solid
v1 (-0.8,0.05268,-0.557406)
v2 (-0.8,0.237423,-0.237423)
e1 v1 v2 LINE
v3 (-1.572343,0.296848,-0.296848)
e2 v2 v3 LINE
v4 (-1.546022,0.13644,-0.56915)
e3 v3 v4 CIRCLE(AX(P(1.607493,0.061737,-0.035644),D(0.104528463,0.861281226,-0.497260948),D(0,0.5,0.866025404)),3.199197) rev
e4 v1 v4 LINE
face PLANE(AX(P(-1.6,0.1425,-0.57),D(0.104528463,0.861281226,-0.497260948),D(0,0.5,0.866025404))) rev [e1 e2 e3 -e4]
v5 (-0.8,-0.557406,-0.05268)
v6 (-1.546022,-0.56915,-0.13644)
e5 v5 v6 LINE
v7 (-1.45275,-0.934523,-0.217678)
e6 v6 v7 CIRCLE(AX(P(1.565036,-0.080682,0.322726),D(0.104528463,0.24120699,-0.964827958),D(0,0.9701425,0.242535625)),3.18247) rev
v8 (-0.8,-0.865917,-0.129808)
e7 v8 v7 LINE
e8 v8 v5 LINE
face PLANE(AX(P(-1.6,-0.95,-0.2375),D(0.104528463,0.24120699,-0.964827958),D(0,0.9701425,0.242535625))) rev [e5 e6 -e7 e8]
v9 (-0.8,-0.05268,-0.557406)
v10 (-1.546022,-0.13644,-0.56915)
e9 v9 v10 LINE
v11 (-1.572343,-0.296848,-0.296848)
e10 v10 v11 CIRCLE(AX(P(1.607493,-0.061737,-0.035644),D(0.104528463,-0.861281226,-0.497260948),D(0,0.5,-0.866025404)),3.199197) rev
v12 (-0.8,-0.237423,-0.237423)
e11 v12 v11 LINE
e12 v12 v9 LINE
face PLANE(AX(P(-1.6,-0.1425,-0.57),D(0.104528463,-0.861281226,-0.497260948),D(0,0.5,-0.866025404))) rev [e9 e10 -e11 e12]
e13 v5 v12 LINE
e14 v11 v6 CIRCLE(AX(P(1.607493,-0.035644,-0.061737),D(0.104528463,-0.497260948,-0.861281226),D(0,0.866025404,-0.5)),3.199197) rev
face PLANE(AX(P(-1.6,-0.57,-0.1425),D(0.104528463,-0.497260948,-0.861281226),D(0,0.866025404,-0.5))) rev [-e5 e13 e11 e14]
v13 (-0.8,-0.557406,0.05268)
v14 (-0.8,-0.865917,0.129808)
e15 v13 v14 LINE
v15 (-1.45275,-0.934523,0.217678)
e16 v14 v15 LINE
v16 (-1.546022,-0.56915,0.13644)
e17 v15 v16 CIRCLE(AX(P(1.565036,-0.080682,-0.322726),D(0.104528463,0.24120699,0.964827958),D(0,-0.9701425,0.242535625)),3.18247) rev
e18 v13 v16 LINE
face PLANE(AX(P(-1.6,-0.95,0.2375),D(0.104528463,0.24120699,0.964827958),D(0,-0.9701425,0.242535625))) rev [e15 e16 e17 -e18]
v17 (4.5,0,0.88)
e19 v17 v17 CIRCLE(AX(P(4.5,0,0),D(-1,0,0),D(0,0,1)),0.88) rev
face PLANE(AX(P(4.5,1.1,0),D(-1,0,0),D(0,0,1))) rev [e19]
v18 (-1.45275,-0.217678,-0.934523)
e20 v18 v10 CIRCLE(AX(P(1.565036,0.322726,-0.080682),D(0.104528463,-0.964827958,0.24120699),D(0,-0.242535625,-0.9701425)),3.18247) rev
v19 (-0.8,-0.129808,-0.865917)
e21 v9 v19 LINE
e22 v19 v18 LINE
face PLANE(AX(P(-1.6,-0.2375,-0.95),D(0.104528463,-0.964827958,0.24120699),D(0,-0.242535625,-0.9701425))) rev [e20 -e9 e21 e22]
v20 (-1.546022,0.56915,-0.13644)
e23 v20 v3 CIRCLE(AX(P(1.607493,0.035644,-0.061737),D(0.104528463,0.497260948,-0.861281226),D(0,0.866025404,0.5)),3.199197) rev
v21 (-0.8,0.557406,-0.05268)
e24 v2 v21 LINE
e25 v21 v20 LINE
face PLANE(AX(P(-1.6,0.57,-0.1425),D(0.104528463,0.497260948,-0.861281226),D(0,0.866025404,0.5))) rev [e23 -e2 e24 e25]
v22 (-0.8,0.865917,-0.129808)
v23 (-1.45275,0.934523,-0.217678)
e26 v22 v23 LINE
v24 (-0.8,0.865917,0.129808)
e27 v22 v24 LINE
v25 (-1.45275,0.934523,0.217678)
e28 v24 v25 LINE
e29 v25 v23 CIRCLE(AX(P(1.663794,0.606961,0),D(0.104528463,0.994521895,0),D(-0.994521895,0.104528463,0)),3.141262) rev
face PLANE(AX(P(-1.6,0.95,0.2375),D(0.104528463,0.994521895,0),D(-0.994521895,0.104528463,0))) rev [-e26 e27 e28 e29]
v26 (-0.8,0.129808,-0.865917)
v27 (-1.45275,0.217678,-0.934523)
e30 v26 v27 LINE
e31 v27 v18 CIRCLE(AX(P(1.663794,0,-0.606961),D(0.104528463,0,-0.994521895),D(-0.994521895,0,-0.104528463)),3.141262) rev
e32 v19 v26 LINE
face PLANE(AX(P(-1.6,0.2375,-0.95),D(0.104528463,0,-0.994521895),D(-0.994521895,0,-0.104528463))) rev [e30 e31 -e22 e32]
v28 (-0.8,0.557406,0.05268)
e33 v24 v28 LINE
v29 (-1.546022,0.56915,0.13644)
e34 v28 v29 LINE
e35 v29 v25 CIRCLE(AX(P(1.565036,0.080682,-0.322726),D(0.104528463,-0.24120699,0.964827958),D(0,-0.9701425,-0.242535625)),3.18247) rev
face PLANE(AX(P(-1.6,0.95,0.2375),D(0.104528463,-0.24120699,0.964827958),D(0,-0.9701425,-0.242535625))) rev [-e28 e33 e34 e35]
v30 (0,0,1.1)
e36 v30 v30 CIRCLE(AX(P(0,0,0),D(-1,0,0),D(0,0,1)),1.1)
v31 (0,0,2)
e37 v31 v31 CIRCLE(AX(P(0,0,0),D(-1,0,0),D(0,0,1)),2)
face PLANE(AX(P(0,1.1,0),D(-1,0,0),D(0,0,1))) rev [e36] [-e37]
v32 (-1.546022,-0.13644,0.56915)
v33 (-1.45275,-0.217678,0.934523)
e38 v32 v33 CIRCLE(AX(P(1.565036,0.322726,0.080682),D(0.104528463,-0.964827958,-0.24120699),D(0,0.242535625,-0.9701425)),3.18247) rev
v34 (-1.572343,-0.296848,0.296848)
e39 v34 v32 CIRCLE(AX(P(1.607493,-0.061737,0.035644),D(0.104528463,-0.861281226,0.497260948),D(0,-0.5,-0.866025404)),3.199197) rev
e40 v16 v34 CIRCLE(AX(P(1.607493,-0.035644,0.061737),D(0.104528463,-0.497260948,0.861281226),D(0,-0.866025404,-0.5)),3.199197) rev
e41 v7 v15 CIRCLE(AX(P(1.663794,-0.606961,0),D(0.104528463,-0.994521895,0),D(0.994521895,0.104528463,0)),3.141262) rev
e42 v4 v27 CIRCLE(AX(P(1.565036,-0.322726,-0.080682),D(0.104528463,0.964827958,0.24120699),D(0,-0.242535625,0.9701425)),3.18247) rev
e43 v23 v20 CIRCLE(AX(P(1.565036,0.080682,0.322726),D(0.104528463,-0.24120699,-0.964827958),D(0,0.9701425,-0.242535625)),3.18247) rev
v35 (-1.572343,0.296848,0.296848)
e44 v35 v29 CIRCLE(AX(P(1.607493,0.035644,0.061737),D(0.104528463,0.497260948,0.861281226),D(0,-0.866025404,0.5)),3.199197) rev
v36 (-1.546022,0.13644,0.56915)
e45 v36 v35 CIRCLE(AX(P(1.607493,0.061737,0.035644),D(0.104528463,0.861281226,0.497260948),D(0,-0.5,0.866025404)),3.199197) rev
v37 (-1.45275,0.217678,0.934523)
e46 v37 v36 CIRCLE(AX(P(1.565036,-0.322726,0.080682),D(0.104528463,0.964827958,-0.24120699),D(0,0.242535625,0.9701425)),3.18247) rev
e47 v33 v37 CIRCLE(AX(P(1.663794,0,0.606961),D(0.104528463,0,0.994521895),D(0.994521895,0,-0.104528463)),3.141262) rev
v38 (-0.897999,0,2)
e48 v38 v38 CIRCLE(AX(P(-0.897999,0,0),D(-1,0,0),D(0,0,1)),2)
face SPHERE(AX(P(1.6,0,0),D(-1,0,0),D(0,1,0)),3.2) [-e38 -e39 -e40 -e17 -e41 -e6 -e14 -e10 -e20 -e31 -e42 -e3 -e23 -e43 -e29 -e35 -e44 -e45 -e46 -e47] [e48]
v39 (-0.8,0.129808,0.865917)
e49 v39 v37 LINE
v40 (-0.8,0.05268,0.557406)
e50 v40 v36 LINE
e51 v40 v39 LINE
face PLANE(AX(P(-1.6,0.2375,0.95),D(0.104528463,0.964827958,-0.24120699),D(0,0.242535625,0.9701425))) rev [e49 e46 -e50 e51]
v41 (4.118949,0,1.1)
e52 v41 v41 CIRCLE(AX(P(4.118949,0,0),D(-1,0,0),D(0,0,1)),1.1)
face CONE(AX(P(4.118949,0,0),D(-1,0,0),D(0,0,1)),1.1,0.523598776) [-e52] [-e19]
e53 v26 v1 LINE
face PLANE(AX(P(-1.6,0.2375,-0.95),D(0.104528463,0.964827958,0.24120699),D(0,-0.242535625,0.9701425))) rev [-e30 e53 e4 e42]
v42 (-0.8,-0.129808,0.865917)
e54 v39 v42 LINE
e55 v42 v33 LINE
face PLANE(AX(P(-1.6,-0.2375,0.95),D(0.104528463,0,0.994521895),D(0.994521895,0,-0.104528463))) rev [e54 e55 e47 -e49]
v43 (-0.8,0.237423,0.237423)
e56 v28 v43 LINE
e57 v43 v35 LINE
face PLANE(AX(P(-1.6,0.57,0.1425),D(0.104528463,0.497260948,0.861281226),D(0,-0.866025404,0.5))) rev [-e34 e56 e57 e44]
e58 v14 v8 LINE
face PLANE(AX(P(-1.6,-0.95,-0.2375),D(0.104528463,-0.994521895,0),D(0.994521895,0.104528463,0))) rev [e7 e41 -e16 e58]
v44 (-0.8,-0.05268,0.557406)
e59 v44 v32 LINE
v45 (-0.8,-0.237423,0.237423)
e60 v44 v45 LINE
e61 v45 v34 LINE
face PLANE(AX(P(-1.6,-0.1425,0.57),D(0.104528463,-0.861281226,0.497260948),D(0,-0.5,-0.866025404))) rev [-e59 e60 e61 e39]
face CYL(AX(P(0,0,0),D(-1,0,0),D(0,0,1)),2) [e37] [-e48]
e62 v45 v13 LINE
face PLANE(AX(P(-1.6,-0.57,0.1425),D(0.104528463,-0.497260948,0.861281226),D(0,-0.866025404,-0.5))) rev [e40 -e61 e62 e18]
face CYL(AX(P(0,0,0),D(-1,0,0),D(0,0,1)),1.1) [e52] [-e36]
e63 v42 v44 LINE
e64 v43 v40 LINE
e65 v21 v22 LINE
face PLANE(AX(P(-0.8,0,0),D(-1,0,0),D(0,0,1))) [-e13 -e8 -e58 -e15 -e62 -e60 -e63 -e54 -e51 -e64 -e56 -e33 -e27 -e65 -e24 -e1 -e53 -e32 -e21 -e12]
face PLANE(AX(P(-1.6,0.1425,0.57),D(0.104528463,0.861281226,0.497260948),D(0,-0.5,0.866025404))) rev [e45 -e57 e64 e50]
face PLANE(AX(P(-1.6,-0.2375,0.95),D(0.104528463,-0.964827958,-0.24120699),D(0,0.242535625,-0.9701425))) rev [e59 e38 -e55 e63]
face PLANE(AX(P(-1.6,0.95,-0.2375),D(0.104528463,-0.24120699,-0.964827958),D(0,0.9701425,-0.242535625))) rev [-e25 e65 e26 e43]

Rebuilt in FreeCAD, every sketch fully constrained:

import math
import FreeCAD as App
import Part
import Sketcher

V = App.Vector
Q = App.Units.Quantity


def edges_at(feature, points):
    """Names of the edges that pass closest to the given points."""
    edges = feature.Shape.Edges
    near = lambda p: min(range(len(edges)), key=lambda i: edges[i].distToShape(Part.Vertex(*p))[0])
    return sorted({f"Edge{near(p) + 1}" for p in points})


def add_polygon(sketch, points):
    """Adds a closed chain of lines whose ends are joined by coincident constraints."""
    first, n = sketch.GeometryCount, len(points)
    for a, b in zip(points, points[1:] + points[:1]):
        sketch.addGeometry(Part.LineSegment(App.Vector(*a, 0), App.Vector(*b, 0)), False)
    for i in range(n):
        sketch.addConstraint(Sketcher.Constraint("Coincident", first + i, 2, first + (i + 1) % n, 1))

doc = App.newDocument("Part")
body = doc.addObject("PartDesign::Body", "Body")

sketch1 = doc.addObject("Sketcher::SketchObject", "Sketch")
body.addObject(sketch1)
sketch1.AttachmentSupport = (doc.XY_Plane, [""])
sketch1.MapMode = "FlatFace"
sketch1.addGeometry(Part.LineSegment(V(0, 2, 0), V(-0.897999, 2, 0)), False)
sketch1.addGeometry(Part.ArcOfCircle(Part.Circle(V(1.6, 0, 0), V(0, 0, 1), 3.2), math.radians(141.317812), math.radians(180)), False)
sketch1.addGeometry(Part.LineSegment(V(-1.6, 0, 0), V(4.5, 0, 0)), False)
sketch1.addGeometry(Part.LineSegment(V(4.5, 0, 0), V(4.5, 1.1, 0)), False)
sketch1.addGeometry(Part.LineSegment(V(4.5, 1.1, 0), V(0, 1.1, 0)), False)
sketch1.addGeometry(Part.LineSegment(V(0, 1.1, 0), V(0, 2, 0)), False)
sketch1.addConstraint(Sketcher.Constraint("Coincident", 0, 2, 1, 1))
sketch1.addConstraint(Sketcher.Constraint("Coincident", 1, 2, 2, 1))
sketch1.addConstraint(Sketcher.Constraint("Coincident", 2, 2, 3, 1))
sketch1.addConstraint(Sketcher.Constraint("Coincident", 3, 2, 4, 1))
sketch1.addConstraint(Sketcher.Constraint("Coincident", 4, 2, 5, 1))
sketch1.addConstraint(Sketcher.Constraint("Coincident", 5, 2, 0, 1))
sketch1.addConstraint(Sketcher.Constraint("Horizontal", 0))
sketch1.addConstraint(Sketcher.Constraint("Horizontal", 2))
sketch1.addConstraint(Sketcher.Constraint("Vertical", 3))
sketch1.addConstraint(Sketcher.Constraint("Horizontal", 4))
sketch1.addConstraint(Sketcher.Constraint("Vertical", 5))
sketch1.addConstraint(Sketcher.Constraint("PointOnObject", 1, 3, -1))
sketch1.addConstraint(Sketcher.Constraint("PointOnObject", 1, 2, -1))
sketch1.addConstraint(Sketcher.Constraint("PointOnObject", 4, 2, -2))
sketch1.addConstraint(Sketcher.Constraint("Radius", 1, Q("3.2 mm")))
sketch1.addConstraint(Sketcher.Constraint("DistanceX", 2, 1, 2, 2, Q("6.1 mm")))
sketch1.addConstraint(Sketcher.Constraint("DistanceX", 4, 2, 4, 1, Q("4.5 mm")))
sketch1.addConstraint(Sketcher.Constraint("DistanceY", 3, 1, 3, 2, Q("1.1 mm")))
sketch1.addConstraint(Sketcher.Constraint("DistanceY", 5, 1, 5, 2, Q("0.9 mm")))
revolution = doc.addObject("PartDesign::Revolution", "Revolution")
body.addObject(revolution)
revolution.Profile = sketch1
revolution.ReferenceAxis = (sketch1, ["H_Axis"])
revolution.Angle = 360
doc.recompute()

chamfer = doc.addObject("PartDesign::Chamfer", "Chamfer")
body.addObject(chamfer)
chamfer.Base = (revolution, edges_at(revolution, [(4.5, 0, -1.1)]))
chamfer.ChamferType = "Two distances"
chamfer.Size = 0.22
chamfer.Size2 = 0.381051

sketch2 = doc.addObject("Sketcher::SketchObject", "Sketch001")
body.addObject(sketch2)
sketch2.AttachmentSupport = (doc.YZ_Plane, [""])
sketch2.MapMode = "FlatFace"
sketch2.AttachmentOffset = App.Placement(V(0, 0, -1.6), App.Rotation())
add_polygon(sketch2, [(0.95, 0.2375), (0.57, 0.1425), (0.298976, 0.298976), (0.1425, 0.57), (0.2375, 0.95), (-0.2375, 0.95), (-0.1425, 0.57), (-0.298976, 0.298976), (-0.57, 0.1425), (-0.95, 0.2375), (-0.95, -0.2375), (-0.57, -0.1425), (-0.298976, -0.298976), (-0.1425, -0.57), (-0.2375, -0.95), (0.2375, -0.95), (0.1425, -0.57), (0.298976, -0.298976), (0.57, -0.1425), (0.95, -0.2375)])
sketch2.addConstraint(Sketcher.Constraint("Horizontal", 4))
sketch2.addConstraint(Sketcher.Constraint("Vertical", 9))
sketch2.addConstraint(Sketcher.Constraint("Horizontal", 14))
sketch2.addConstraint(Sketcher.Constraint("Vertical", 19))
sketch2.addConstraint(Sketcher.Constraint("Symmetric", 0, 2, 10, 2, -1, 1))
sketch2.addConstraint(Sketcher.Constraint("Symmetric", 1, 2, 11, 2, -1, 1))
sketch2.addConstraint(Sketcher.Constraint("Symmetric", 2, 2, 12, 2, -1, 1))
sketch2.addConstraint(Sketcher.Constraint("Symmetric", 3, 2, 13, 2, -1, 1))
sketch2.addConstraint(Sketcher.Constraint("Symmetric", 5, 2, 15, 2, -1, 1))
sketch2.addConstraint(Sketcher.Constraint("Symmetric", 6, 2, 16, 2, -1, 1))
sketch2.addConstraint(Sketcher.Constraint("Symmetric", 7, 2, 17, 2, -1, 1))
sketch2.addConstraint(Sketcher.Constraint("Symmetric", 8, 2, 18, 2, -1, 1))
sketch2.addConstraint(Sketcher.Constraint("Symmetric", 2, 2, 5, 2, -2))
sketch2.addConstraint(Sketcher.Constraint("Symmetric", 1, 2, 6, 2, -2))
sketch2.addConstraint(Sketcher.Constraint("Symmetric", 0, 2, 7, 2, -2))
sketch2.addConstraint(Sketcher.Constraint("Perpendicular", 0, 5))
sketch2.addConstraint(Sketcher.Constraint("Perpendicular", 1, 6))
sketch2.addConstraint(Sketcher.Constraint("Perpendicular", 3, 8))
sketch2.addConstraint(Sketcher.Constraint("Perpendicular", 5, 10))
sketch2.addConstraint(Sketcher.Constraint("Perpendicular", 10, 15))
sketch2.addConstraint(Sketcher.Constraint("Horizontal", 9, 2, 18, 2))
sketch2.addConstraint(Sketcher.Constraint("Equal", 14, 9))
sketch2.addConstraint(Sketcher.Constraint("Equal", 1, 2))
sketch2.addConstraint(Sketcher.Constraint("Equal", 0, 3))
sketch2.addConstraint(Sketcher.Constraint("Angle", 1, Q("150 deg")))
sketch2.addConstraint(Sketcher.Constraint("DistanceX", 4, 2, 4, 1, Q("0.475 mm")))
sketch2.addConstraint(Sketcher.Constraint("DistanceX", -1, 1, 0, 2, Q("0.57 mm")))
sketch2.addConstraint(Sketcher.Constraint("DistanceY", -1, 1, 3, 2, Q("0.95 mm")))
sketch2.addConstraint(Sketcher.Constraint("DistanceX", 4, 2, 2, 2, Q("0.38 mm")))
pocket1 = doc.addObject("PartDesign::Pocket", "Pocket")
body.addObject(pocket1)
pocket1.Profile = sketch2
pocket1.Length = 0.8
pocket1.Reversed = True
pocket1.TaperAngle = -6

doc.recompute()
